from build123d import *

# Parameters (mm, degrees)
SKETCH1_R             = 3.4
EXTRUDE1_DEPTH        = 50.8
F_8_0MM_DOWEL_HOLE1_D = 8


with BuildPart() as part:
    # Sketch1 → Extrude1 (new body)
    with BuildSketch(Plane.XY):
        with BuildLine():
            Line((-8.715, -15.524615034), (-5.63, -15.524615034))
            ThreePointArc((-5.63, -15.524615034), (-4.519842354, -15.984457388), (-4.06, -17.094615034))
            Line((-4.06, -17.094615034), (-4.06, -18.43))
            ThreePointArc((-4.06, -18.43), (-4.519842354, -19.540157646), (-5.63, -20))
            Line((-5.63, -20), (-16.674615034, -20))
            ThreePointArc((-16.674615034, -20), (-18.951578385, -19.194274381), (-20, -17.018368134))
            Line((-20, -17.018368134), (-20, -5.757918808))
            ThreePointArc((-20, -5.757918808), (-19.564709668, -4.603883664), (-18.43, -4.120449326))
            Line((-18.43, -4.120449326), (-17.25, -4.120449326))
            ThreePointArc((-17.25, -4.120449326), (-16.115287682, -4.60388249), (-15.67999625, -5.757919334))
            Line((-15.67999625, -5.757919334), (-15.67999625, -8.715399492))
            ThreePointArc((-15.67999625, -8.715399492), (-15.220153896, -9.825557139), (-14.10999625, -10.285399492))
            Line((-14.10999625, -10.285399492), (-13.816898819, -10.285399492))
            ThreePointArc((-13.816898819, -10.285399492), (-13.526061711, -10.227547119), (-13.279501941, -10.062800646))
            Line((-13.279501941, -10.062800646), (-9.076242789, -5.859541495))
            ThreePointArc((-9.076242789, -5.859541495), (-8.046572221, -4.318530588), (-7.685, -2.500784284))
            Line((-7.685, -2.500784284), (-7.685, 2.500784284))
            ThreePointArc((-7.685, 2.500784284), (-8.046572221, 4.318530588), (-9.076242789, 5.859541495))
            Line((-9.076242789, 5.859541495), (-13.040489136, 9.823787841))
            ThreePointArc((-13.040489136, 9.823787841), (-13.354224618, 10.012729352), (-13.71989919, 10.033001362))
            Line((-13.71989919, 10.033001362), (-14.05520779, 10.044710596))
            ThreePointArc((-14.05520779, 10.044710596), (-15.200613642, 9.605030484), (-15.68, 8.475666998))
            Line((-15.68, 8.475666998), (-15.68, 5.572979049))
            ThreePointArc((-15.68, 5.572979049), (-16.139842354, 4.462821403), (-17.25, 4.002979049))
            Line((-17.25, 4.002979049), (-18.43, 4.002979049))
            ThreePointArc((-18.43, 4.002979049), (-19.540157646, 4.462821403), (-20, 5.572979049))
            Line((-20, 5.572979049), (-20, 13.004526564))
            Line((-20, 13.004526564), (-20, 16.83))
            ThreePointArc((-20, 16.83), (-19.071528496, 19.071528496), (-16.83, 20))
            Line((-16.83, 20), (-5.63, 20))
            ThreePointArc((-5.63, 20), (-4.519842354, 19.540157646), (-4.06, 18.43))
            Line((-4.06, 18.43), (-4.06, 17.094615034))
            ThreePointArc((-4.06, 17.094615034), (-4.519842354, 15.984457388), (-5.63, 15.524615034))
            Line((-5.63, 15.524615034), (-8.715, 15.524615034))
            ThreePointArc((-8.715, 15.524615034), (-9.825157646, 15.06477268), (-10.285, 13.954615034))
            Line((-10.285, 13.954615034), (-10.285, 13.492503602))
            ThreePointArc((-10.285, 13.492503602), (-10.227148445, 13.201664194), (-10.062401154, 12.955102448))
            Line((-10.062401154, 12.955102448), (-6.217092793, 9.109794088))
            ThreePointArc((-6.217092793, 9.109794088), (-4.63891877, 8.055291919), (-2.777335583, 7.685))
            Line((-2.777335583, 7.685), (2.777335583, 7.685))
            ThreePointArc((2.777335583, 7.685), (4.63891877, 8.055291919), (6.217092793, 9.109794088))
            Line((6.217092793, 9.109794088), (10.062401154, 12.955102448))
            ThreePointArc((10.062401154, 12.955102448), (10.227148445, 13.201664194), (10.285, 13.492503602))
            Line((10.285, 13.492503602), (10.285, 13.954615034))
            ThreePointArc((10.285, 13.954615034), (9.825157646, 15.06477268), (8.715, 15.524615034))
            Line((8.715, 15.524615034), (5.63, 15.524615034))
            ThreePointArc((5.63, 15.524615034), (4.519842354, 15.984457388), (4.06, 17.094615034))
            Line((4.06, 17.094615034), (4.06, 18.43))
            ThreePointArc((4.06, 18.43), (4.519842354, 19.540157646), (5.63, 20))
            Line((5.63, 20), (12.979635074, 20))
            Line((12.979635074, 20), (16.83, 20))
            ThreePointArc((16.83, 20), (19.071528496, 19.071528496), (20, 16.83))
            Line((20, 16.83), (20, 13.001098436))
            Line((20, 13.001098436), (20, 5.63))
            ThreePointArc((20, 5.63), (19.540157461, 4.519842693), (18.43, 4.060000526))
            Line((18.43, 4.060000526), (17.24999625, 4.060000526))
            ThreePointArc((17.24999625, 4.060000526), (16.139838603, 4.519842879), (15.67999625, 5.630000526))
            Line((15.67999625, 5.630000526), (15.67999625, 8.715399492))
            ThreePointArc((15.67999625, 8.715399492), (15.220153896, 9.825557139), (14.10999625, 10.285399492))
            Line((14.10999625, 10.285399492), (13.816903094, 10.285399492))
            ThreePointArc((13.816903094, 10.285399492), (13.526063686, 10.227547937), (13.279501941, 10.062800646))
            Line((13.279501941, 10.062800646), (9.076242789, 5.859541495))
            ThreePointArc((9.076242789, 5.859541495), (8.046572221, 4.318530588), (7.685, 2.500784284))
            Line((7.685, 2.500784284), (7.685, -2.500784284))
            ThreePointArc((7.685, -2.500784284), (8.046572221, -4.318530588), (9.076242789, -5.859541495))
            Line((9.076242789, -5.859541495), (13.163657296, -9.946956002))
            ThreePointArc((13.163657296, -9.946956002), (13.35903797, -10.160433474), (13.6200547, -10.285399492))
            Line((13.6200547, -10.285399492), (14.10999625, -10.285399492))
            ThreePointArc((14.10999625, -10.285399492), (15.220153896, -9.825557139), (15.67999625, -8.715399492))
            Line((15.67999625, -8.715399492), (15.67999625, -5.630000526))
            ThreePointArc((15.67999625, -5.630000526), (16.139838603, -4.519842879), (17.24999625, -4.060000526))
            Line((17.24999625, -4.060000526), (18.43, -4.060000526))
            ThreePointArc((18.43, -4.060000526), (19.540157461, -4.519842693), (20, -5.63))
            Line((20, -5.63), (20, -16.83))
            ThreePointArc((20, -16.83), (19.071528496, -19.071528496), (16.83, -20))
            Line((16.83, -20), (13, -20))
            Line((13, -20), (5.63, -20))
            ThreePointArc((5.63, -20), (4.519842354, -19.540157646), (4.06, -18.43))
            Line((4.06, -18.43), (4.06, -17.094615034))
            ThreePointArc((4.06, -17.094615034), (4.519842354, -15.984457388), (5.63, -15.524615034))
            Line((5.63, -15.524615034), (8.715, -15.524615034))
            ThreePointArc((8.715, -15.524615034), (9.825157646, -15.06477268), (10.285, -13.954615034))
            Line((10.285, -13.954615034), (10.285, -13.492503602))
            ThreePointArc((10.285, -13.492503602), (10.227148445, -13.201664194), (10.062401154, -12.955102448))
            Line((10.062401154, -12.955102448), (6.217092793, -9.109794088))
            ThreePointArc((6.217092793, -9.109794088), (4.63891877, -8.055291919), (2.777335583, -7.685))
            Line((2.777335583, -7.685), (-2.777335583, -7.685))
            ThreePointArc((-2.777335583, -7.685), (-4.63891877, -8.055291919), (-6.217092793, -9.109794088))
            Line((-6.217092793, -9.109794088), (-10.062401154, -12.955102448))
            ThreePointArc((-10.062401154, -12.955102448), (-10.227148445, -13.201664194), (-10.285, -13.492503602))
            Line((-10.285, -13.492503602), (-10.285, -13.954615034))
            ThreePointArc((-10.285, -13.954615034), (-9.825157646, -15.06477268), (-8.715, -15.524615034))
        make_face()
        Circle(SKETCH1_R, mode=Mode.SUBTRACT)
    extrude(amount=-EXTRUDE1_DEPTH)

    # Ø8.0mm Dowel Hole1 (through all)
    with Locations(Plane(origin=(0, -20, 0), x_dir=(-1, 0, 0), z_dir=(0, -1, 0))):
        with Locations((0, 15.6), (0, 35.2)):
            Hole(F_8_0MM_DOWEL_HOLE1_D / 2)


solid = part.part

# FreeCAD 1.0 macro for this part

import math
import FreeCAD as App
import Part
import Sketcher
from FreeCAD import Vector
Q = App.Units.Quantity

doc = App.newDocument("Part")
params = doc.addObject("Spreadsheet::Sheet", "Params")
for row, (alias, value) in enumerate([
    ("sketch1_diameter", "6.8 mm"),
    ("sketch1_radius", "1.57 mm"),
    ("sketch1_radius2", "0.76 mm"),
    ("sketch1_radius3", "3.17 mm"),
    ("sketch1_radius4", "4.75 mm"),
    ("pad1_length", "50.8 mm"),
    ("sketch2_diameter", "8 mm"),
    ("hole_diameter", "8 mm"),
], start=1):
    params.set(f"A{row}", alias)
    params.set(f"B{row}", "=" + value)
    params.setAlias(f"B{row}", alias)

body = doc.addObject("PartDesign::Body", "Body")

# Sketch on XY plane
sketch1 = body.newObject("Sketcher::SketchObject", "Sketch")
sketch1.AttachmentSupport = (doc.getObject("XY_Plane"), [""])
sketch1.MapMode = "FlatFace"
sketch1.addGeometry(Part.LineSegment(Vector(-5.63, -15.52, 0), Vector(-8.71, -15.52, 0)), False)
sketch1.addGeometry(Part.ArcOfCircle(Part.Circle(Vector(-8.71, -13.95, 0), Vector(0, 0, 1), 1.57), math.radians(-180), math.radians(-90)), False)
sketch1.addGeometry(Part.LineSegment(Vector(-10.29, -13.95, 0), Vector(-10.29, -13.49, 0)), False)
sketch1.addGeometry(Part.ArcOfCircle(Part.Circle(Vector(-9.52, -13.49, 0), Vector(0, 0, 1), 0.76), math.radians(135), math.radians(180)), False)
sketch1.addGeometry(Part.LineSegment(Vector(-10.06, -12.96, 0), Vector(-6.22, -9.11, 0)), False)
sketch1.addGeometry(Part.ArcOfCircle(Part.Circle(Vector(-2.78, -12.55, 0), Vector(0, 0, 1), 4.86), math.radians(90), math.radians(135)), False)
sketch1.addGeometry(Part.LineSegment(Vector(-2.78, -7.68, 0), Vector(2.78, -7.68, 0)), False)
sketch1.addGeometry(Part.ArcOfCircle(Part.Circle(Vector(2.78, -12.55, 0), Vector(0, 0, 1), 4.86), math.radians(45), math.radians(90)), False)
sketch1.addGeometry(Part.LineSegment(Vector(6.22, -9.11, 0), Vector(10.06, -12.96, 0)), False)
sketch1.addGeometry(Part.ArcOfCircle(Part.Circle(Vector(9.52, -13.49, 0), Vector(0, 0, 1), 0.76), math.radians(0), math.radians(45)), False)
sketch1.addGeometry(Part.LineSegment(Vector(10.29, -13.49, 0), Vector(10.29, -13.95, 0)), False)
sketch1.addGeometry(Part.ArcOfCircle(Part.Circle(Vector(8.71, -13.95, 0), Vector(0, 0, 1), 1.57), math.radians(-90), math.radians(0)), False)
sketch1.addGeometry(Part.LineSegment(Vector(8.71, -15.52, 0), Vector(5.63, -15.52, 0)), False)
sketch1.addGeometry(Part.ArcOfCircle(Part.Circle(Vector(5.63, -17.09, 0), Vector(0, 0, 1), 1.57), math.radians(90), math.radians(180)), False)
sketch1.addGeometry(Part.LineSegment(Vector(4.06, -17.09, 0), Vector(4.06, -18.43, 0)), False)
sketch1.addGeometry(Part.ArcOfCircle(Part.Circle(Vector(5.63, -18.43, 0), Vector(0, 0, 1), 1.57), math.radians(-180), math.radians(-90)), False)
sketch1.addGeometry(Part.LineSegment(Vector(5.63, -20, 0), Vector(16.83, -20, 0)), False)
sketch1.addGeometry(Part.ArcOfCircle(Part.Circle(Vector(16.83, -16.83, 0), Vector(0, 0, 1), 3.17), math.radians(-90), math.radians(0)), False)
sketch1.addGeometry(Part.LineSegment(Vector(20, -16.83, 0), Vector(20, -5.63, 0)), False)
sketch1.addGeometry(Part.ArcOfCircle(Part.Circle(Vector(18.43, -5.63, 0), Vector(0, 0, 1), 1.57), math.radians(0), math.radians(90)), False)
sketch1.addGeometry(Part.LineSegment(Vector(18.43, -4.06, 0), Vector(17.25, -4.06, 0)), False)
sketch1.addGeometry(Part.ArcOfCircle(Part.Circle(Vector(17.25, -5.63, 0), Vector(0, 0, 1), 1.57), math.radians(90), math.radians(180)), False)
sketch1.addGeometry(Part.LineSegment(Vector(15.68, -5.63, 0), Vector(15.68, -8.72, 0)), False)
sketch1.addGeometry(Part.ArcOfCircle(Part.Circle(Vector(14.11, -8.72, 0), Vector(0, 0, 1), 1.57), math.radians(-90), math.radians(0)), False)
sketch1.addGeometry(Part.LineSegment(Vector(14.11, -10.29, 0), Vector(13.62, -10.29, 0)), False)
sketch1.addGeometry(Part.ArcOfCircle(Part.Circle(Vector(13.81, -9.55, 0), Vector(0, 0, 1), 0.76), math.radians(-149), math.radians(-105)), False)
sketch1.addGeometry(Part.LineSegment(Vector(13.16, -9.95, 0), Vector(9.08, -5.86, 0)), False)
sketch1.addGeometry(Part.ArcOfCircle(Part.Circle(Vector(12.44, -2.5, 0), Vector(0, 0, 1), 4.75), math.radians(-180), math.radians(-135)), False)
sketch1.addGeometry(Part.LineSegment(Vector(7.68, -2.5, 0), Vector(7.68, 2.5, 0)), False)
sketch1.addGeometry(Part.ArcOfCircle(Part.Circle(Vector(12.44, 2.5, 0), Vector(0, 0, 1), 4.75), math.radians(135), math.radians(180)), False)
sketch1.addGeometry(Part.LineSegment(Vector(9.08, 5.86, 0), Vector(13.28, 10.06, 0)), False)
sketch1.addGeometry(Part.ArcOfCircle(Part.Circle(Vector(13.82, 9.53, 0), Vector(0, 0, 1), 0.76), math.radians(90), math.radians(135)), False)
sketch1.addGeometry(Part.LineSegment(Vector(13.82, 10.29, 0), Vector(14.11, 10.29, 0)), False)
sketch1.addGeometry(Part.ArcOfCircle(Part.Circle(Vector(14.11, 8.72, 0), Vector(0, 0, 1), 1.57), math.radians(0), math.radians(90)), False)
sketch1.addGeometry(Part.LineSegment(Vector(15.68, 8.72, 0), Vector(15.68, 5.63, 0)), False)
sketch1.addGeometry(Part.ArcOfCircle(Part.Circle(Vector(17.25, 5.63, 0), Vector(0, 0, 1), 1.57), math.radians(180), math.radians(270)), False)
sketch1.addGeometry(Part.LineSegment(Vector(17.25, 4.06, 0), Vector(18.43, 4.06, 0)), False)
sketch1.addGeometry(Part.ArcOfCircle(Part.Circle(Vector(18.43, 5.63, 0), Vector(0, 0, 1), 1.57), math.radians(-90), math.radians(0)), False)
sketch1.addGeometry(Part.LineSegment(Vector(20, 5.63, 0), Vector(20, 16.83, 0)), False)
sketch1.addGeometry(Part.ArcOfCircle(Part.Circle(Vector(16.83, 16.83, 0), Vector(0, 0, 1), 3.17), math.radians(0), math.radians(90)), False)
sketch1.addGeometry(Part.LineSegment(Vector(16.83, 20, 0), Vector(5.63, 20, 0)), False)
sketch1.addGeometry(Part.ArcOfCircle(Part.Circle(Vector(5.63, 18.43, 0), Vector(0, 0, 1), 1.57), math.radians(90), math.radians(180)), False)
sketch1.addGeometry(Part.LineSegment(Vector(4.06, 18.43, 0), Vector(4.06, 17.09, 0)), False)
sketch1.addGeometry(Part.ArcOfCircle(Part.Circle(Vector(5.63, 17.09, 0), Vector(0, 0, 1), 1.57), math.radians(-180), math.radians(-90)), False)
sketch1.addGeometry(Part.LineSegment(Vector(5.63, 15.52, 0), Vector(8.71, 15.52, 0)), False)
sketch1.addGeometry(Part.ArcOfCircle(Part.Circle(Vector(8.71, 13.95, 0), Vector(0, 0, 1), 1.57), math.radians(0), math.radians(90)), False)
sketch1.addGeometry(Part.LineSegment(Vector(10.29, 13.95, 0), Vector(10.29, 13.49, 0)), False)
sketch1.addGeometry(Part.ArcOfCircle(Part.Circle(Vector(9.52, 13.49, 0), Vector(0, 0, 1), 0.76), math.radians(-45), math.radians(0)), False)
sketch1.addGeometry(Part.LineSegment(Vector(10.06, 12.96, 0), Vector(6.22, 9.11, 0)), False)
sketch1.addGeometry(Part.ArcOfCircle(Part.Circle(Vector(2.78, 12.55, 0), Vector(0, 0, 1), 4.86), math.radians(-90), math.radians(-45)), False)
sketch1.addGeometry(Part.LineSegment(Vector(2.78, 7.68, 0), Vector(-2.78, 7.68, 0)), False)
sketch1.addGeometry(Part.ArcOfCircle(Part.Circle(Vector(-2.78, 12.55, 0), Vector(0, 0, 1), 4.86), math.radians(-135), math.radians(-90)), False)
sketch1.addGeometry(Part.LineSegment(Vector(-6.22, 9.11, 0), Vector(-10.06, 12.96, 0)), False)
sketch1.addGeometry(Part.ArcOfCircle(Part.Circle(Vector(-9.52, 13.49, 0), Vector(0, 0, 1), 0.76), math.radians(180), math.radians(225)), False)
sketch1.addGeometry(Part.LineSegment(Vector(-10.29, 13.49, 0), Vector(-10.29, 13.95, 0)), False)
sketch1.addGeometry(Part.ArcOfCircle(Part.Circle(Vector(-8.71, 13.95, 0), Vector(0, 0, 1), 1.57), math.radians(90), math.radians(180)), False)
sketch1.addGeometry(Part.LineSegment(Vector(-8.71, 15.52, 0), Vector(-5.63, 15.52, 0)), False)
sketch1.addGeometry(Part.ArcOfCircle(Part.Circle(Vector(-5.63, 17.09, 0), Vector(0, 0, 1), 1.57), math.radians(-90), math.radians(0)), False)
sketch1.addGeometry(Part.LineSegment(Vector(-4.06, 17.09, 0), Vector(-4.06, 18.43, 0)), False)
sketch1.addGeometry(Part.ArcOfCircle(Part.Circle(Vector(-5.63, 18.43, 0), Vector(0, 0, 1), 1.57), math.radians(0), math.radians(90)), False)
sketch1.addGeometry(Part.LineSegment(Vector(-5.63, 20, 0), Vector(-16.83, 20, 0)), False)
sketch1.addGeometry(Part.ArcOfCircle(Part.Circle(Vector(-16.83, 16.83, 0), Vector(0, 0, 1), 3.17), math.radians(90), math.radians(180)), False)
sketch1.addGeometry(Part.LineSegment(Vector(-20, 16.83, 0), Vector(-20, 5.57, 0)), False)
sketch1.addGeometry(Part.ArcOfCircle(Part.Circle(Vector(-18.43, 5.57, 0), Vector(0, 0, 1), 1.57), math.radians(-180), math.radians(-90)), False)
sketch1.addGeometry(Part.LineSegment(Vector(-18.43, 4, 0), Vector(-17.25, 4, 0)), False)
sketch1.addGeometry(Part.ArcOfCircle(Part.Circle(Vector(-17.25, 5.57, 0), Vector(0, 0, 1), 1.57), math.radians(-90), math.radians(0)), False)
sketch1.addGeometry(Part.LineSegment(Vector(-15.68, 5.57, 0), Vector(-15.68, 8.48, 0)), False)
sketch1.addGeometry(Part.ArcOfCircle(Part.Circle(Vector(-14.11, 8.48, 0), Vector(0, 0, 1), 1.57), math.radians(88), math.radians(180)), False)
sketch1.addGeometry(Part.LineSegment(Vector(-14.06, 10.04, 0), Vector(-13.72, 10.03, 0)), False)
sketch1.addGeometry(Part.ArcOfCircle(Part.Circle(Vector(-13.58, 9.29, 0), Vector(0, 0, 1), 0.76), math.radians(45), math.radians(101)), False)
sketch1.addGeometry(Part.LineSegment(Vector(-13.04, 9.82, 0), Vector(-9.08, 5.86, 0)), False)
sketch1.addGeometry(Part.ArcOfCircle(Part.Circle(Vector(-12.44, 2.5, 0), Vector(0, 0, 1), 4.75), math.radians(0), math.radians(45)), False)
sketch1.addGeometry(Part.LineSegment(Vector(-7.68, 2.5, 0), Vector(-7.68, -2.5, 0)), False)
sketch1.addGeometry(Part.ArcOfCircle(Part.Circle(Vector(-12.44, -2.5, 0), Vector(0, 0, 1), 4.75), math.radians(-45), math.radians(0)), False)
sketch1.addGeometry(Part.LineSegment(Vector(-9.08, -5.86, 0), Vector(-13.28, -10.06, 0)), False)
sketch1.addGeometry(Part.ArcOfCircle(Part.Circle(Vector(-13.82, -9.53, 0), Vector(0, 0, 1), 0.76), math.radians(-90), math.radians(-45)), False)
sketch1.addGeometry(Part.LineSegment(Vector(-13.82, -10.29, 0), Vector(-14.11, -10.29, 0)), False)
sketch1.addGeometry(Part.ArcOfCircle(Part.Circle(Vector(-14.11, -8.72, 0), Vector(0, 0, 1), 1.57), math.radians(180), math.radians(270)), False)
sketch1.addGeometry(Part.LineSegment(Vector(-15.68, -8.72, 0), Vector(-15.68, -5.76, 0)), False)
sketch1.addGeometry(Part.ArcOfCircle(Part.Circle(Vector(-17.25, -5.69, 0), Vector(0, 0, 1), 1.57), math.radians(-2), math.radians(90)), False)
sketch1.addGeometry(Part.LineSegment(Vector(-17.25, -4.12, 0), Vector(-18.43, -4.12, 0)), False)
sketch1.addGeometry(Part.ArcOfCircle(Part.Circle(Vector(-18.43, -5.69, 0), Vector(0, 0, 1), 1.57), math.radians(90), math.radians(182)), False)
sketch1.addGeometry(Part.LineSegment(Vector(-20, -5.76, 0), Vector(-20, -17.02, 0)), False)
sketch1.addGeometry(Part.ArcOfCircle(Part.Circle(Vector(-16.84, -16.83, 0), Vector(0, 0, 1), 3.17), math.radians(-177), math.radians(-87)), False)
sketch1.addGeometry(Part.LineSegment(Vector(-16.67, -20, 0), Vector(-5.63, -20, 0)), False)
sketch1.addGeometry(Part.ArcOfCircle(Part.Circle(Vector(-5.63, -18.43, 0), Vector(0, 0, 1), 1.57), math.radians(-90), math.radians(0)), False)
sketch1.addGeometry(Part.LineSegment(Vector(-4.06, -18.43, 0), Vector(-4.06, -17.09, 0)), False)
sketch1.addGeometry(Part.ArcOfCircle(Part.Circle(Vector(-5.63, -17.09, 0), Vector(0, 0, 1), 1.57), math.radians(0), math.radians(90)), False)
sketch1.addGeometry(Part.Circle(Vector(0, 0, 0), Vector(0, 0, 1), 3.4), False)
sketch1.addConstraint(Sketcher.Constraint("Tangent", 0, 2, 1, 2))
sketch1.addConstraint(Sketcher.Constraint("Tangent", 1, 1, 2, 1))
sketch1.addConstraint(Sketcher.Constraint("Tangent", 2, 2, 3, 2))
sketch1.addConstraint(Sketcher.Constraint("Tangent", 3, 1, 4, 1))
sketch1.addConstraint(Sketcher.Constraint("Tangent", 4, 2, 5, 2))
sketch1.addConstraint(Sketcher.Constraint("Tangent", 5, 1, 6, 1))
sketch1.addConstraint(Sketcher.Constraint("Tangent", 6, 2, 7, 2))
sketch1.addConstraint(Sketcher.Constraint("Tangent", 7, 1, 8, 1))
sketch1.addConstraint(Sketcher.Constraint("Tangent", 8, 2, 9, 2))
sketch1.addConstraint(Sketcher.Constraint("Tangent", 9, 1, 10, 1))
sketch1.addConstraint(Sketcher.Constraint("Tangent", 10, 2, 11, 2))
sketch1.addConstraint(Sketcher.Constraint("Tangent", 11, 1, 12, 1))
sketch1.addConstraint(Sketcher.Constraint("Tangent", 12, 2, 13, 1))
sketch1.addConstraint(Sketcher.Constraint("Tangent", 13, 2, 14, 1))
sketch1.addConstraint(Sketcher.Constraint("Tangent", 14, 2, 15, 1))
sketch1.addConstraint(Sketcher.Constraint("Tangent", 15, 2, 16, 1))
sketch1.addConstraint(Sketcher.Constraint("Tangent", 16, 2, 17, 1))
sketch1.addConstraint(Sketcher.Constraint("Tangent", 17, 2, 18, 1))
sketch1.addConstraint(Sketcher.Constraint("Tangent", 18, 2, 19, 1))
sketch1.addConstraint(Sketcher.Constraint("Tangent", 19, 2, 20, 1))
sketch1.addConstraint(Sketcher.Constraint("Tangent", 20, 2, 21, 1))
sketch1.addConstraint(Sketcher.Constraint("Tangent", 21, 2, 22, 1))
sketch1.addConstraint(Sketcher.Constraint("Tangent", 22, 2, 23, 2))
sketch1.addConstraint(Sketcher.Constraint("Tangent", 23, 1, 24, 1))
sketch1.addConstraint(Sketcher.Constraint("Coincident", 24, 2, 25, 2))
sketch1.addConstraint(Sketcher.Constraint("Coincident", 25, 1, 26, 1))
sketch1.addConstraint(Sketcher.Constraint("Tangent", 26, 2, 27, 2))
sketch1.addConstraint(Sketcher.Constraint("Tangent", 27, 1, 28, 1))
sketch1.addConstraint(Sketcher.Constraint("Tangent", 28, 2, 29, 2))
sketch1.addConstraint(Sketcher.Constraint("Tangent", 29, 1, 30, 1))
sketch1.addConstraint(Sketcher.Constraint("Tangent", 30, 2, 31, 2))
sketch1.addConstraint(Sketcher.Constraint("Tangent", 31, 1, 32, 1))
sketch1.addConstraint(Sketcher.Constraint("Tangent", 32, 2, 33, 2))
sketch1.addConstraint(Sketcher.Constraint("Tangent", 33, 1, 34, 1))
sketch1.addConstraint(Sketcher.Constraint("Tangent", 34, 2, 35, 1))
sketch1.addConstraint(Sketcher.Constraint("Tangent", 35, 2, 36, 1))
sketch1.addConstraint(Sketcher.Constraint("Tangent", 36, 2, 37, 1))
sketch1.addConstraint(Sketcher.Constraint("Tangent", 37, 2, 38, 1))
sketch1.addConstraint(Sketcher.Constraint("Tangent", 38, 2, 39, 1))
sketch1.addConstraint(Sketcher.Constraint("Tangent", 39, 2, 40, 1))
sketch1.addConstraint(Sketcher.Constraint("Tangent", 40, 2, 41, 1))
sketch1.addConstraint(Sketcher.Constraint("Tangent", 41, 2, 42, 1))
sketch1.addConstraint(Sketcher.Constraint("Tangent", 42, 2, 43, 1))
sketch1.addConstraint(Sketcher.Constraint("Tangent", 43, 2, 44, 1))
sketch1.addConstraint(Sketcher.Constraint("Tangent", 44, 2, 45, 2))
sketch1.addConstraint(Sketcher.Constraint("Tangent", 45, 1, 46, 1))
sketch1.addConstraint(Sketcher.Constraint("Tangent", 46, 2, 47, 2))
sketch1.addConstraint(Sketcher.Constraint("Tangent", 47, 1, 48, 1))
sketch1.addConstraint(Sketcher.Constraint("Tangent", 48, 2, 49, 2))
sketch1.addConstraint(Sketcher.Constraint("Tangent", 49, 1, 50, 1))
sketch1.addConstraint(Sketcher.Constraint("Tangent", 50, 2, 51, 2))
sketch1.addConstraint(Sketcher.Constraint("Tangent", 51, 1, 52, 1))
sketch1.addConstraint(Sketcher.Constraint("Tangent", 52, 2, 53, 2))
sketch1.addConstraint(Sketcher.Constraint("Tangent", 53, 1, 54, 1))
sketch1.addConstraint(Sketcher.Constraint("Tangent", 54, 2, 55, 2))
sketch1.addConstraint(Sketcher.Constraint("Tangent", 55, 1, 56, 1))
sketch1.addConstraint(Sketcher.Constraint("Tangent", 56, 2, 57, 1))
sketch1.addConstraint(Sketcher.Constraint("Tangent", 57, 2, 58, 1))
sketch1.addConstraint(Sketcher.Constraint("Tangent", 58, 2, 59, 1))
sketch1.addConstraint(Sketcher.Constraint("Tangent", 59, 2, 60, 1))
sketch1.addConstraint(Sketcher.Constraint("Tangent", 60, 2, 61, 1))
sketch1.addConstraint(Sketcher.Constraint("Tangent", 61, 2, 62, 1))
sketch1.addConstraint(Sketcher.Constraint("Tangent", 62, 2, 63, 1))
sketch1.addConstraint(Sketcher.Constraint("Tangent", 63, 2, 64, 1))
sketch1.addConstraint(Sketcher.Constraint("Tangent", 64, 2, 65, 1))
sketch1.addConstraint(Sketcher.Constraint("Tangent", 65, 2, 66, 1))
sketch1.addConstraint(Sketcher.Constraint("Tangent", 66, 2, 67, 2))
sketch1.addConstraint(Sketcher.Constraint("Tangent", 67, 1, 68, 1))
sketch1.addConstraint(Sketcher.Constraint("Coincident", 68, 2, 69, 2))
sketch1.addConstraint(Sketcher.Constraint("Tangent", 69, 1, 70, 1))
sketch1.addConstraint(Sketcher.Constraint("Tangent", 70, 2, 71, 2))
sketch1.addConstraint(Sketcher.Constraint("Tangent", 71, 1, 72, 1))
sketch1.addConstraint(Sketcher.Constraint("Tangent", 72, 2, 73, 2))
sketch1.addConstraint(Sketcher.Constraint("Tangent", 73, 1, 74, 1))
sketch1.addConstraint(Sketcher.Constraint("Tangent", 74, 2, 75, 2))
sketch1.addConstraint(Sketcher.Constraint("Coincident", 75, 1, 76, 1))
sketch1.addConstraint(Sketcher.Constraint("Tangent", 76, 2, 77, 2))
sketch1.addConstraint(Sketcher.Constraint("Tangent", 77, 1, 78, 1))
sketch1.addConstraint(Sketcher.Constraint("Coincident", 78, 2, 79, 1))
sketch1.addConstraint(Sketcher.Constraint("Coincident", 79, 2, 80, 1))
sketch1.addConstraint(Sketcher.Constraint("Coincident", 80, 2, 81, 1))
sketch1.addConstraint(Sketcher.Constraint("Coincident", 81, 2, 82, 1))
sketch1.addConstraint(Sketcher.Constraint("Coincident", 82, 2, 83, 1))
sketch1.addConstraint(Sketcher.Constraint("Coincident", 83, 2, 84, 1))
sketch1.addConstraint(Sketcher.Constraint("Tangent", 84, 2, 85, 1))
sketch1.addConstraint(Sketcher.Constraint("Tangent", 85, 2, 86, 1))
sketch1.addConstraint(Sketcher.Constraint("Tangent", 86, 2, 87, 1))
sketch1.addConstraint(Sketcher.Constraint("Tangent", 87, 2, 0, 1))
sketch1.addConstraint(Sketcher.Constraint("Horizontal", 0))
sketch1.addConstraint(Sketcher.Constraint("Vertical", 2))
sketch1.addConstraint(Sketcher.Constraint("Horizontal", 6))
sketch1.addConstraint(Sketcher.Constraint("Vertical", 10))
sketch1.addConstraint(Sketcher.Constraint("Horizontal", 12))
sketch1.addConstraint(Sketcher.Constraint("Vertical", 14))
sketch1.addConstraint(Sketcher.Constraint("Horizontal", 16))
sketch1.addConstraint(Sketcher.Constraint("Vertical", 18))
sketch1.addConstraint(Sketcher.Constraint("Horizontal", 20))
sketch1.addConstraint(Sketcher.Constraint("Vertical", 22))
sketch1.addConstraint(Sketcher.Constraint("Horizontal", 24))
sketch1.addConstraint(Sketcher.Constraint("Vertical", 28))
sketch1.addConstraint(Sketcher.Constraint("Horizontal", 32))
sketch1.addConstraint(Sketcher.Constraint("Vertical", 34))
sketch1.addConstraint(Sketcher.Constraint("Horizontal", 36))
sketch1.addConstraint(Sketcher.Constraint("Vertical", 38))
sketch1.addConstraint(Sketcher.Constraint("Horizontal", 40))
sketch1.addConstraint(Sketcher.Constraint("Vertical", 42))
sketch1.addConstraint(Sketcher.Constraint("Horizontal", 44))
sketch1.addConstraint(Sketcher.Constraint("Vertical", 46))
sketch1.addConstraint(Sketcher.Constraint("Horizontal", 50))
sketch1.addConstraint(Sketcher.Constraint("Vertical", 54))
sketch1.addConstraint(Sketcher.Constraint("Horizontal", 56))
sketch1.addConstraint(Sketcher.Constraint("Vertical", 58))
sketch1.addConstraint(Sketcher.Constraint("Horizontal", 60))
sketch1.addConstraint(Sketcher.Constraint("Vertical", 62))
sketch1.addConstraint(Sketcher.Constraint("Horizontal", 64))
sketch1.addConstraint(Sketcher.Constraint("Vertical", 66))
sketch1.addConstraint(Sketcher.Constraint("Vertical", 72))
sketch1.addConstraint(Sketcher.Constraint("Horizontal", 76))
sketch1.addConstraint(Sketcher.Constraint("Vertical", 78))
sketch1.addConstraint(Sketcher.Constraint("Horizontal", 80))
sketch1.addConstraint(Sketcher.Constraint("Vertical", 82))
sketch1.addConstraint(Sketcher.Constraint("Horizontal", 84))
sketch1.addConstraint(Sketcher.Constraint("Vertical", 86))
sketch1.addConstraint(Sketcher.Constraint("Coincident", 88, 3, -1, 1))
sketch1.addConstraint(Sketcher.Constraint("Equal", 5, 7))
sketch1.addConstraint(Sketcher.Constraint("Equal", 3, 9))
sketch1.addConstraint(Sketcher.Constraint("Equal", 1, 11))
sketch1.addConstraint(Sketcher.Constraint("Equal", 11, 13))
sketch1.addConstraint(Sketcher.Constraint("Equal", 13, 15))
sketch1.addConstraint(Sketcher.Constraint("Equal", 15, 19))
sketch1.addConstraint(Sketcher.Constraint("Equal", 19, 21))
sketch1.addConstraint(Sketcher.Constraint("Equal", 21, 23))
sketch1.addConstraint(Sketcher.Constraint("Equal", 9, 25))
sketch1.addConstraint(Sketcher.Constraint("Equal", 27, 29))
sketch1.addConstraint(Sketcher.Constraint("Equal", 25, 31))
sketch1.addConstraint(Sketcher.Constraint("Equal", 23, 33))
sketch1.addConstraint(Sketcher.Constraint("Equal", 33, 35))
sketch1.addConstraint(Sketcher.Constraint("Equal", 35, 37))
sketch1.addConstraint(Sketcher.Constraint("Equal", 17, 39))
sketch1.addConstraint(Sketcher.Constraint("Equal", 37, 41))
sketch1.addConstraint(Sketcher.Constraint("Equal", 41, 43))
sketch1.addConstraint(Sketcher.Constraint("Equal", 43, 45))
sketch1.addConstraint(Sketcher.Constraint("Equal", 31, 47))
sketch1.addConstraint(Sketcher.Constraint("Equal", 7, 49))
sketch1.addConstraint(Sketcher.Constraint("Equal", 49, 51))
sketch1.addConstraint(Sketcher.Constraint("Equal", 47, 53))
sketch1.addConstraint(Sketcher.Constraint("Equal", 45, 55))
sketch1.addConstraint(Sketcher.Constraint("Equal", 55, 57))
sketch1.addConstraint(Sketcher.Constraint("Equal", 57, 59))
sketch1.addConstraint(Sketcher.Constraint("Equal", 39, 61))
sketch1.addConstraint(Sketcher.Constraint("Equal", 59, 63))
sketch1.addConstraint(Sketcher.Constraint("Equal", 63, 65))
sketch1.addConstraint(Sketcher.Constraint("Equal", 65, 67))
sketch1.addConstraint(Sketcher.Constraint("Equal", 53, 69))
sketch1.addConstraint(Sketcher.Constraint("Equal", 29, 71))
sketch1.addConstraint(Sketcher.Constraint("Equal", 71, 73))
sketch1.addConstraint(Sketcher.Constraint("Equal", 69, 75))
sketch1.addConstraint(Sketcher.Constraint("Equal", 67, 77))
sketch1.addConstraint(Sketcher.Constraint("Equal", 77, 79))
sketch1.addConstraint(Sketcher.Constraint("Equal", 79, 81))
sketch1.addConstraint(Sketcher.Constraint("Equal", 61, 83))
sketch1.addConstraint(Sketcher.Constraint("Equal", 81, 85))
sketch1.addConstraint(Sketcher.Constraint("Equal", 85, 87))
sketch1.addConstraint(Sketcher.Constraint("Symmetric", 1, 3, 45, 3, -1, 1))
sketch1.addConstraint(Sketcher.Constraint("Symmetric", 5, 3, 49, 3, -1, 1))
sketch1.addConstraint(Sketcher.Constraint("Symmetric", 9, 3, 53, 3, -1, 1))
sketch1.addConstraint(Sketcher.Constraint("Symmetric", 13, 3, 57, 3, -1, 1))
sketch1.addConstraint(Sketcher.Constraint("Symmetric", 17, 3, 61, 3, -1, 1))
sketch1.addConstraint(Sketcher.Constraint("Symmetric", 27, 3, 71, 3, -1, 1))
sketch1.addConstraint(Sketcher.Constraint("Symmetric", 31, 3, 75, 3, -1, 1))
sketch1.addConstraint(Sketcher.Constraint("Symmetric", 41, 3, 85, 3, -1, 1))
sketch1.addConstraint(Sketcher.Constraint("Symmetric", 3, 3, 9, 3, -2))
sketch1.addConstraint(Sketcher.Constraint("Symmetric", 43, 3, 57, 3, -2))
sketch1.addConstraint(Sketcher.Constraint("Symmetric", 39, 3, 61, 3, -2))
sketch1.addConstraint(Sketcher.Constraint("Symmetric", 23, 3, 77, 3, -2))
sketch1.addConstraint(Sketcher.Constraint("Symmetric", 48, 2, 51, 1, -2))
sketch1.addConstraint(Sketcher.Constraint("Symmetric", 29, 1, 70, 2, -2))
sketch1.addConstraint(Sketcher.Constraint("Symmetric", 26, 2, 73, 1, -2))
sketch1.addConstraint(Sketcher.Constraint("Symmetric", 21, 3, 35, 3, -1))
sketch1.addConstraint(Sketcher.Constraint("Perpendicular", 4, 8))
sketch1.addConstraint(Sketcher.Constraint("Parallel", 8, 26))
sketch1.addConstraint(Sketcher.Constraint("Perpendicular", 26, 30))
sketch1.addConstraint(Sketcher.Constraint("Horizontal", 78, 2, 81, 2))
sketch1.addConstraint(Sketcher.Constraint("Vertical", 64, 2, 79, 2))
sketch1.addConstraint(Sketcher.Constraint("Vertical", 63, 2, 80, 2))
sketch1.addConstraint(Sketcher.Constraint("Vertical", 62, 2, 81, 2))
sketch1.addConstraint(Sketcher.Constraint("Equal", 60, 18))
sketch1.addConstraint(Sketcher.Constraint("Diameter", 88, 6.8))
sketch1.addConstraint(Sketcher.Constraint("Angle", 68, Q("-2 deg")))
sketch1.addConstraint(Sketcher.Constraint("Radius", 1, 1.57))
sketch1.addConstraint(Sketcher.Constraint("Radius", 3, 0.76))
sketch1.addConstraint(Sketcher.Constraint("Radius", 17, 3.17))
sketch1.addConstraint(Sketcher.Constraint("Radius", 27, 4.75))
sketch1.addConstraint(Sketcher.Constraint("DistanceX", 16, 1, 16, 2, 11.2))
sketch1.addConstraint(Sketcher.Constraint("DistanceY", 15, 2, -1, 1, 20.0))
sketch1.addConstraint(Sketcher.Constraint("DistanceX", -1, 1, 17, 2, 20.0))
sketch1.addConstraint(Sketcher.Constraint("DistanceX", 64, 1, 64, 2, 1.18))
sketch1.addConstraint(Sketcher.Constraint("DistanceX", 0, 2, 0, 1, 3.085))
sketch1.addConstraint(Sketcher.Constraint("Radius", 5, 4.864551))
sketch1.addConstraint(Sketcher.Constraint("DistanceY", 22, 2, 22, 1, 3.085399))
sketch1.addConstraint(Sketcher.Constraint("DistanceX", -1, 1, 27, 3, 12.435))
sketch1.addConstraint(Sketcher.Constraint("DistanceY", 5, 1, -1, 1, 7.685))
sketch1.addConstraint(Sketcher.Constraint("DistanceY", -1, 1, 68, 2, 10.033001))
sketch1.addConstraint(Sketcher.Constraint("DistanceX", 6, 1, 6, 2, 5.554671))
sketch1.addConstraint(Sketcher.Constraint("DistanceX", 24, 2, 24, 1, 0.489942))
sketch1.addConstraint(Sketcher.Constraint("DistanceY", 2, 1, 2, 2, 0.462111))
sketch1.addConstraint(Sketcher.Constraint("DistanceY", 28, 1, 28, 2, 5.001569))
sketch1.addConstraint(Sketcher.Constraint("DistanceY", 62, 2, 62, 1, 11.257021))
sketch1.addConstraint(Sketcher.Constraint("DistanceY", 78, 1, 78, 2, 2.95748))
sketch1.addConstraint(Sketcher.Constraint("DistanceY", 82, 2, 82, 1, 11.260449))
sketch1.addConstraint(Sketcher.Constraint("DistanceX", 68, 2, -1, 1, 13.719899))
sketch1.addConstraint(Sketcher.Constraint("DistanceX", 75, 1, -1, 1, 13.816899))
sketch1.addConstraint(Sketcher.Constraint("DistanceX", 20, 2, 20, 1, 1.180004))
sketch1.addConstraint(Sketcher.Constraint("DistanceX", 84, 1, 84, 2, 11.044615))
sketch1.addConstraint(Sketcher.Constraint("DistanceX", -1, 1, 25, 3, 13.811732))
sketch1.addConstraint(Sketcher.Constraint("DistanceY", 79, 3, -1, 1, 5.690449))
sketch1.setExpression("Constraints[187]", "Params.sketch1_diameter")
sketch1.setExpression("Constraints[189]", "Params.sketch1_radius")
sketch1.setExpression("Constraints[190]", "Params.sketch1_radius2")
sketch1.setExpression("Constraints[191]", "Params.sketch1_radius3")
sketch1.setExpression("Constraints[192]", "Params.sketch1_radius4")
pad1 = body.newObject("PartDesign::Pad", "Pad")
pad1.Profile = sketch1
pad1.setExpression("Length", "Params.pad1_length")
pad1.Reversed = True

# Sketch on XZ plane
sketch2 = body.newObject("Sketcher::SketchObject", "Sketch001")
sketch2.AttachmentSupport = (doc.getObject("XZ_Plane"), [""])
sketch2.MapMode = "FlatFace"
sketch2.AttachmentOffset = App.Placement(Vector(0, 0, 20), App.Rotation())
sketch2.addGeometry(Part.Circle(Vector(0, -15.6, 0), Vector(0, 0, 1), 4), False)
sketch2.addGeometry(Part.Circle(Vector(0, -35.2, 0), Vector(0, 0, 1), 4), False)
sketch2.addConstraint(Sketcher.Constraint("Equal", 0, 1))
sketch2.addConstraint(Sketcher.Constraint("PointOnObject", 0, 3, -2))
sketch2.addConstraint(Sketcher.Constraint("PointOnObject", 1, 3, -2))
sketch2.addConstraint(Sketcher.Constraint("Diameter", 0, 8.0))
sketch2.addConstraint(Sketcher.Constraint("DistanceY", 0, 3, -1, 1, 15.6))
sketch2.addConstraint(Sketcher.Constraint("DistanceY", 1, 3, -1, 1, 35.2))
sketch2.setExpression("Constraints[3]", "Params.sketch2_diameter")
doc.recompute()
hole = body.newObject("PartDesign::Hole", "Hole")
hole.Profile = sketch2
hole.ThreadType = "None"
hole.setExpression("Diameter", "Params.hole_diameter")
hole.DepthType = "ThroughAll"

doc.recompute()
